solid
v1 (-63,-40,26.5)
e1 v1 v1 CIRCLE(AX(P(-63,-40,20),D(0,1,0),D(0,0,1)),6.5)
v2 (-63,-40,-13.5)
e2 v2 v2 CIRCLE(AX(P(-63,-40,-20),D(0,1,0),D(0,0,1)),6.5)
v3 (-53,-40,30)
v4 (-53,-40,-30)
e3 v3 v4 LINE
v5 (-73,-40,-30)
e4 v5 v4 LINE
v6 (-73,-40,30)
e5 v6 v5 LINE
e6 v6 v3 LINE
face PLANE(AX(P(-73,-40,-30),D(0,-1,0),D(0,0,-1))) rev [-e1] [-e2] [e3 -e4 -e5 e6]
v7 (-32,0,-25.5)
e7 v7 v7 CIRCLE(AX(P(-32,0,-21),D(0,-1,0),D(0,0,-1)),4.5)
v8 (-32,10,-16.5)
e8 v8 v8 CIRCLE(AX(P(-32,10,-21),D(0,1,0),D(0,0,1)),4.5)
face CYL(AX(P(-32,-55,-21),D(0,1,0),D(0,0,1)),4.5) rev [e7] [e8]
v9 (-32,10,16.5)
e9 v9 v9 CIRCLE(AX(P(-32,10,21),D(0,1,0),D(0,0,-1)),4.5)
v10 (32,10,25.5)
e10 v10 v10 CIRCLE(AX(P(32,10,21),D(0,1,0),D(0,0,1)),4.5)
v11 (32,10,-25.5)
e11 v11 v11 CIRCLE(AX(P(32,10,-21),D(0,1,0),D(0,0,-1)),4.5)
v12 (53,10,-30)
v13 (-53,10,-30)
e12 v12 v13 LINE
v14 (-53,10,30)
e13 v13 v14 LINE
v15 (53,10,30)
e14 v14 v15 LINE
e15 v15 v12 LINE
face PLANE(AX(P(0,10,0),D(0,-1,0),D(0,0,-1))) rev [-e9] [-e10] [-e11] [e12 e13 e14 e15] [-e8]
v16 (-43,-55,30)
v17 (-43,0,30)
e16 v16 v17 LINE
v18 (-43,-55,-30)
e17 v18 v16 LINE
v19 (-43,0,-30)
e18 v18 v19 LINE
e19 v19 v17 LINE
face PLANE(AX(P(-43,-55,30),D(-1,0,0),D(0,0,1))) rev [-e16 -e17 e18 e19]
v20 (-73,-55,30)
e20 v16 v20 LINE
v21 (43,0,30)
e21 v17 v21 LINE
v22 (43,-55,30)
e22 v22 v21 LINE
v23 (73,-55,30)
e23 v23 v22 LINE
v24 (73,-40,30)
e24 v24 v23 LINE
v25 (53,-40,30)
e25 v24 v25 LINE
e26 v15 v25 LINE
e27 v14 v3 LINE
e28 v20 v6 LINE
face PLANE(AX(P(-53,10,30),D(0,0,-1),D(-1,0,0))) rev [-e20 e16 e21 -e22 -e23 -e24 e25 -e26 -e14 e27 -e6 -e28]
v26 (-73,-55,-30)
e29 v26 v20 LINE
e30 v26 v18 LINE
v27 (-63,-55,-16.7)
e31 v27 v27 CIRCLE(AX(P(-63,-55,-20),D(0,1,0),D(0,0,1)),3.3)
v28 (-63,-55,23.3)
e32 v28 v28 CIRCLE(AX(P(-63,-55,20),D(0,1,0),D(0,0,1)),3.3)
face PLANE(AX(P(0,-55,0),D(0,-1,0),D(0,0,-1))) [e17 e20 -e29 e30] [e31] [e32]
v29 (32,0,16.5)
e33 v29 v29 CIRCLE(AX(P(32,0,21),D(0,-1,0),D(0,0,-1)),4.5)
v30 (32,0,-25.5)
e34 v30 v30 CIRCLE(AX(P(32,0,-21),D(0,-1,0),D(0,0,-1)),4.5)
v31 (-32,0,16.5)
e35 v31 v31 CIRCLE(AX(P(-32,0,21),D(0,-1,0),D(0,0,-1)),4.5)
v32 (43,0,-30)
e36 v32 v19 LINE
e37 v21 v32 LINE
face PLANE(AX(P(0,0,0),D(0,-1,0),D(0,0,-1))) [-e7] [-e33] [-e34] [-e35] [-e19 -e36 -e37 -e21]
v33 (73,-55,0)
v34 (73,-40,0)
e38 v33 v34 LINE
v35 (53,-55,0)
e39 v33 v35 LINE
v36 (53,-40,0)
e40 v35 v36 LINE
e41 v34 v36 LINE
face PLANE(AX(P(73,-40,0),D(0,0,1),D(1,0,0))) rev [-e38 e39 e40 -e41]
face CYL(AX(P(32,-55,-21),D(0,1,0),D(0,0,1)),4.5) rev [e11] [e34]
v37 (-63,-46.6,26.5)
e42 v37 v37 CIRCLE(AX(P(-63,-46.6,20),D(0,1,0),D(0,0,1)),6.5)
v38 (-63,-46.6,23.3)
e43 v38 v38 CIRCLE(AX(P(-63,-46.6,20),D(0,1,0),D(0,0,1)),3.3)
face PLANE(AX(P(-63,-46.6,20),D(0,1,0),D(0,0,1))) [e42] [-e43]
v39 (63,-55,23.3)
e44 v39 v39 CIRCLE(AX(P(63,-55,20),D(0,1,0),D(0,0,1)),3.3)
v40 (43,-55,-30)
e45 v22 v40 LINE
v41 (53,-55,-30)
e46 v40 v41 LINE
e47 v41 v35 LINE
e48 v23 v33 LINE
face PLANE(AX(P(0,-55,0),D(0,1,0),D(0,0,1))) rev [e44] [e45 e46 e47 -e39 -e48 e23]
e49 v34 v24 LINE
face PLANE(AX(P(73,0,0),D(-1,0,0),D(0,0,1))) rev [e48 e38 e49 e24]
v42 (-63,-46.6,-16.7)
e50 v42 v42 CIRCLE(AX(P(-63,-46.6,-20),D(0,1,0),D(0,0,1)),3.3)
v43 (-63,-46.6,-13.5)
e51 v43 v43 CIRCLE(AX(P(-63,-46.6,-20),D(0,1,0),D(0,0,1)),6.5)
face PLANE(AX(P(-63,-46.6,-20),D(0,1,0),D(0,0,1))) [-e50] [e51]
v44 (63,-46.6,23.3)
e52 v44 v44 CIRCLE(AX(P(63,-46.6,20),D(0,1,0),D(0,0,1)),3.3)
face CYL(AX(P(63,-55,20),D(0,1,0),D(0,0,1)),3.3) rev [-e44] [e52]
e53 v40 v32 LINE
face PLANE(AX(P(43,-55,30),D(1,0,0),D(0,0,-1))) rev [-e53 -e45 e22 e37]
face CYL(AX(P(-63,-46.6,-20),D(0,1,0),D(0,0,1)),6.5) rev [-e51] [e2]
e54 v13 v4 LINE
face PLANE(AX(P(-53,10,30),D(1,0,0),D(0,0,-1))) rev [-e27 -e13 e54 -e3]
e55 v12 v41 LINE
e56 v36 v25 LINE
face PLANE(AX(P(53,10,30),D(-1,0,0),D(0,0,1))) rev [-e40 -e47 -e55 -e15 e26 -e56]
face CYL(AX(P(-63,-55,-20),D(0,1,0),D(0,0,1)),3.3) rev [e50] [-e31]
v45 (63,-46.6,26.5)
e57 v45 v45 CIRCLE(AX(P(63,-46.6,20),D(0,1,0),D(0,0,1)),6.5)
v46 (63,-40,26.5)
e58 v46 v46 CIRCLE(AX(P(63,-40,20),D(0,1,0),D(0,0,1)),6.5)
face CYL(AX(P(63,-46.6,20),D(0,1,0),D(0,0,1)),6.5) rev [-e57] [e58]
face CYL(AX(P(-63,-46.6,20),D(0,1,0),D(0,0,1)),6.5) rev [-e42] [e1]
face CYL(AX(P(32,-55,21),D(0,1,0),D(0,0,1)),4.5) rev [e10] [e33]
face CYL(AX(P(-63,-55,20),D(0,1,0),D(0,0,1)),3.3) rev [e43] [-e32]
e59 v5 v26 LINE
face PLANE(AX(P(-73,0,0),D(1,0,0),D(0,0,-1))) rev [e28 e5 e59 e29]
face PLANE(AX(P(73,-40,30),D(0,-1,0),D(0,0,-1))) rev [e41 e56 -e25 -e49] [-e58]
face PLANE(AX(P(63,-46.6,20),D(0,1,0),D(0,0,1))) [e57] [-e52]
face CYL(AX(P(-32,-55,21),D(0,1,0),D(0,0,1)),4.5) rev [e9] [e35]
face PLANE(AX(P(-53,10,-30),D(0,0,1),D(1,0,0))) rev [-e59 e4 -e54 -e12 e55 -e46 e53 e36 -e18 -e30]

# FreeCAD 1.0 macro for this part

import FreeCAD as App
import Part
import Sketcher
from FreeCAD import Vector
Q = App.Units.Quantity


def add_polygon(sketch, points):
    """Adds a closed chain of lines whose ends are joined by coincident constraints."""
    first, n = sketch.GeometryCount, len(points)
    for a, b in zip(points, points[1:] + points[:1]):
        sketch.addGeometry(Part.LineSegment(App.Vector(*a, 0), App.Vector(*b, 0)), False)
    for i in range(n):
        sketch.addConstraint(Sketcher.Constraint("Coincident", first + i, 2, first + (i + 1) % n, 1))

doc = App.newDocument("Part")
params = doc.addObject("Spreadsheet::Sheet", "Params")
for row, (alias, value) in enumerate([
    ("sketch1_width", "106 mm"),
    ("sketch1_height", "60 mm"),
    ("pad1_length", "10 mm"),
    ("sketch2_width", "10 mm"),
    ("sketch2_height", "60 mm"),
    ("pad2_length", "55 mm"),
    ("sketch3_width", "15 mm"),
    ("sketch3_height", "30 mm"),
    ("pad3_length", "20 mm"),
    ("sketch4_width", "15 mm"),
    ("sketch4_height", "60 mm"),
    ("pad4_length", "20 mm"),
    ("sketch5_diameter", "9 mm"),
    ("sketch6_diameter", "13 mm"),
    ("pocket2_length", "6.6 mm"),
    ("sketch7_diameter", "6.6 mm"),
], start=1):
    params.set(f"A{row}", alias)
    params.set(f"B{row}", "=" + value)
    params.setAlias(f"B{row}", alias)

body = doc.addObject("PartDesign::Body", "Body")

sketch1 = body.newObject("Sketcher::SketchObject", "Sketch")
sketch1.AttachmentSupport = (doc.getObject("XZ_Plane"), [""])
sketch1.MapMode = "FlatFace"
add_polygon(sketch1, [(-53, -30), (-53, 30), (53, 30), (53, -30)])
sketch1.addConstraint(Sketcher.Constraint("Vertical", 0))
sketch1.addConstraint(Sketcher.Constraint("Horizontal", 1))
sketch1.addConstraint(Sketcher.Constraint("Vertical", 2))
sketch1.addConstraint(Sketcher.Constraint("Horizontal", 3))
sketch1.addConstraint(Sketcher.Constraint("Symmetric", 0, 2, 2, 2, -1, 1))
sketch1.addConstraint(Sketcher.Constraint("DistanceX", 1, 1, 1, 2, Q("106 mm")))
sketch1.addConstraint(Sketcher.Constraint("DistanceY", 0, 1, 0, 2, Q("60 mm")))
sketch1.setExpression("Constraints[9]", "Params.sketch1_width")
sketch1.setExpression("Constraints[10]", "Params.sketch1_height")
pad1 = body.newObject("PartDesign::Pad", "Pad")
pad1.Profile = sketch1
pad1.setExpression("Length", "Params.pad1_length")
pad1.Reversed = True

sketch2 = body.newObject("Sketcher::SketchObject", "Sketch001")
sketch2.AttachmentSupport = (doc.getObject("XZ_Plane"), [""])
sketch2.MapMode = "FlatFace"
add_polygon(sketch2, [(-53, 30), (-53, -30), (-43, -30), (-43, 30)])
add_polygon(sketch2, [(43, 30), (43, -30), (53, -30), (53, 30)])
sketch2.addConstraint(Sketcher.Constraint("Vertical", 0))
sketch2.addConstraint(Sketcher.Constraint("Horizontal", 1))
sketch2.addConstraint(Sketcher.Constraint("Vertical", 2))
sketch2.addConstraint(Sketcher.Constraint("Horizontal", 3))
sketch2.addConstraint(Sketcher.Constraint("Vertical", 4))
sketch2.addConstraint(Sketcher.Constraint("Horizontal", 5))
sketch2.addConstraint(Sketcher.Constraint("Vertical", 6))
sketch2.addConstraint(Sketcher.Constraint("Horizontal", 7))
sketch2.addConstraint(Sketcher.Constraint("Symmetric", 2, 2, 4, 2, -1, 1))
sketch2.addConstraint(Sketcher.Constraint("Symmetric", 0, 2, 6, 2, -1, 1))
sketch2.addConstraint(Sketcher.Constraint("Horizontal", 1, 2, 4, 2))
sketch2.addConstraint(Sketcher.Constraint("DistanceX", 1, 1, 1, 2, Q("10 mm")))
sketch2.addConstraint(Sketcher.Constraint("DistanceY", 0, 2, 0, 1, Q("60 mm")))
sketch2.addConstraint(Sketcher.Constraint("DistanceX", 0, 2, -1, 1, Q("53 mm")))
sketch2.setExpression("Constraints[19]", "Params.sketch2_width")
sketch2.setExpression("Constraints[20]", "Params.sketch2_height")
pad2 = body.newObject("PartDesign::Pad", "Pad001")
pad2.Profile = sketch2
pad2.setExpression("Length", "Params.pad2_length")

sketch3 = body.newObject("Sketcher::SketchObject", "Sketch002")
sketch3.AttachmentSupport = (doc.getObject("YZ_Plane"), [""])
sketch3.MapMode = "FlatFace"
sketch3.AttachmentOffset = App.Placement(Vector(0, 0, 53), App.Rotation())
add_polygon(sketch3, [(-40, 30), (-55, 30), (-55, 0), (-40, 0)])
sketch3.addConstraint(Sketcher.Constraint("Horizontal", 0))
sketch3.addConstraint(Sketcher.Constraint("Vertical", 1))
sketch3.addConstraint(Sketcher.Constraint("Horizontal", 2))
sketch3.addConstraint(Sketcher.Constraint("Vertical", 3))
sketch3.addConstraint(Sketcher.Constraint("PointOnObject", 1, 2, -1))
sketch3.addConstraint(Sketcher.Constraint("DistanceX", 0, 2, 0, 1, Q("15 mm")))
sketch3.addConstraint(Sketcher.Constraint("DistanceY", 1, 2, 1, 1, Q("30 mm")))
sketch3.addConstraint(Sketcher.Constraint("DistanceX", 0, 2, -1, 1, Q("55 mm")))
sketch3.setExpression("Constraints[9]", "Params.sketch3_width")
sketch3.setExpression("Constraints[10]", "Params.sketch3_height")
pad3 = body.newObject("PartDesign::Pad", "Pad002")
pad3.Profile = sketch3
pad3.setExpression("Length", "Params.pad3_length")

sketch4 = body.newObject("Sketcher::SketchObject", "Sketch003")
sketch4.AttachmentSupport = (doc.getObject("YZ_Plane"), [""])
sketch4.MapMode = "FlatFace"
sketch4.AttachmentOffset = App.Placement(Vector(0, 0, -53), App.Rotation())
add_polygon(sketch4, [(-40, -30), (-55, -30), (-55, 30), (-40, 30)])
sketch4.addConstraint(Sketcher.Constraint("Horizontal", 0))
sketch4.addConstraint(Sketcher.Constraint("Vertical", 1))
sketch4.addConstraint(Sketcher.Constraint("Horizontal", 2))
sketch4.addConstraint(Sketcher.Constraint("Vertical", 3))
sketch4.addConstraint(Sketcher.Constraint("DistanceX", 0, 2, 0, 1, Q("15 mm")))
sketch4.addConstraint(Sketcher.Constraint("DistanceY", 1, 1, 1, 2, Q("60 mm")))
sketch4.addConstraint(Sketcher.Constraint("DistanceX", 0, 2, -1, 1, Q("55 mm")))
sketch4.addConstraint(Sketcher.Constraint("DistanceY", 0, 2, -1, 1, Q("30 mm")))
sketch4.setExpression("Constraints[8]", "Params.sketch4_width")
sketch4.setExpression("Constraints[9]", "Params.sketch4_height")
pad4 = body.newObject("PartDesign::Pad", "Pad003")
pad4.Profile = sketch4
pad4.setExpression("Length", "Params.pad4_length")
pad4.Reversed = True

sketch5 = body.newObject("Sketcher::SketchObject", "Sketch004")
sketch5.AttachmentSupport = (doc.getObject("XZ_Plane"), [""])
sketch5.MapMode = "FlatFace"
sketch5.AttachmentOffset = App.Placement(Vector(0, 0, -10), App.Rotation())
sketch5.addGeometry(Part.Circle(Vector(-32, -21, 0), Vector(0, 0, 1), 4.5), False)
sketch5.addGeometry(Part.Circle(Vector(32, -21, 0), Vector(0, 0, 1), 4.5), False)
sketch5.addGeometry(Part.Circle(Vector(32, 21, 0), Vector(0, 0, 1), 4.5), False)
sketch5.addGeometry(Part.Circle(Vector(-32, 21, 0), Vector(0, 0, 1), 4.5), False)
sketch5.addConstraint(Sketcher.Constraint("Equal", 0, 1))
sketch5.addConstraint(Sketcher.Constraint("Equal", 1, 2))
sketch5.addConstraint(Sketcher.Constraint("Equal", 2, 3))
sketch5.addConstraint(Sketcher.Constraint("Symmetric", 0, 3, 2, 3, -1, 1))
sketch5.addConstraint(Sketcher.Constraint("Symmetric", 1, 3, 3, 3, -1, 1))
sketch5.addConstraint(Sketcher.Constraint("Symmetric", 0, 3, 1, 3, -2))
sketch5.addConstraint(Sketcher.Constraint("Diameter", 0, Q("9 mm")))
sketch5.addConstraint(Sketcher.Constraint("DistanceX", 0, 3, -1, 1, Q("32 mm")))
sketch5.addConstraint(Sketcher.Constraint("DistanceY", 0, 3, -1, 1, Q("21 mm")))
sketch5.setExpression("Constraints[6]", "Params.sketch5_diameter")
pocket1 = body.newObject("PartDesign::Pocket", "Pocket")
pocket1.Profile = sketch5
pocket1.Type = "ThroughAll"
pocket1.Reversed = True

sketch6 = body.newObject("Sketcher::SketchObject", "Sketch005")
sketch6.AttachmentSupport = (doc.getObject("XZ_Plane"), [""])
sketch6.MapMode = "FlatFace"
sketch6.AttachmentOffset = App.Placement(Vector(0, 0, 40), App.Rotation())
sketch6.addGeometry(Part.Circle(Vector(63, 20, 0), Vector(0, 0, 1), 6), False)
sketch6.addGeometry(Part.Circle(Vector(-63, -20, 0), Vector(0, 0, 1), 6), False)
sketch6.addGeometry(Part.Circle(Vector(-63, 20, 0), Vector(0, 0, 1), 6), False)
sketch6.addConstraint(Sketcher.Constraint("Equal", 0, 1))
sketch6.addConstraint(Sketcher.Constraint("Equal", 1, 2))
sketch6.addConstraint(Sketcher.Constraint("Symmetric", 0, 3, 1, 3, -1, 1))
sketch6.addConstraint(Sketcher.Constraint("Symmetric", 0, 3, 2, 3, -2))
sketch6.addConstraint(Sketcher.Constraint("Diameter", 0, Q("13 mm")))
sketch6.addConstraint(Sketcher.Constraint("DistanceX", -1, 1, 0, 3, Q("63 mm")))
sketch6.addConstraint(Sketcher.Constraint("DistanceY", -1, 1, 0, 3, Q("20 mm")))
sketch6.setExpression("Constraints[4]", "Params.sketch6_diameter")
pocket2 = body.newObject("PartDesign::Pocket", "Pocket001")
pocket2.Profile = sketch6
pocket2.setExpression("Length", "Params.pocket2_length")
pocket2.Reversed = True

sketch7 = body.newObject("Sketcher::SketchObject", "Sketch006")
sketch7.AttachmentSupport = (doc.getObject("XZ_Plane"), [""])
sketch7.MapMode = "FlatFace"
sketch7.AttachmentOffset = App.Placement(Vector(0, 0, 46.6), App.Rotation())
sketch7.addGeometry(Part.Circle(Vector(-63, -20, 0), Vector(0, 0, 1), 3.3), False)
sketch7.addGeometry(Part.Circle(Vector(-63, 20, 0), Vector(0, 0, 1), 3.3), False)
sketch7.addGeometry(Part.Circle(Vector(63, 20, 0), Vector(0, 0, 1), 3.3), False)
sketch7.addConstraint(Sketcher.Constraint("Equal", 0, 1))
sketch7.addConstraint(Sketcher.Constraint("Equal", 1, 2))
sketch7.addConstraint(Sketcher.Constraint("Symmetric", 0, 3, 2, 3, -1, 1))
sketch7.addConstraint(Sketcher.Constraint("Symmetric", 1, 3, 2, 3, -2))
sketch7.addConstraint(Sketcher.Constraint("Diameter", 0, Q("6.6 mm")))
sketch7.addConstraint(Sketcher.Constraint("DistanceX", 0, 3, -1, 1, Q("63 mm")))
sketch7.addConstraint(Sketcher.Constraint("DistanceY", 0, 3, -1, 1, Q("20 mm")))
sketch7.setExpression("Constraints[4]", "Params.sketch7_diameter")
pocket3 = body.newObject("PartDesign::Pocket", "Pocket002")
pocket3.Profile = sketch7
pocket3.Type = "ThroughAll"
pocket3.Reversed = True

doc.recompute()
